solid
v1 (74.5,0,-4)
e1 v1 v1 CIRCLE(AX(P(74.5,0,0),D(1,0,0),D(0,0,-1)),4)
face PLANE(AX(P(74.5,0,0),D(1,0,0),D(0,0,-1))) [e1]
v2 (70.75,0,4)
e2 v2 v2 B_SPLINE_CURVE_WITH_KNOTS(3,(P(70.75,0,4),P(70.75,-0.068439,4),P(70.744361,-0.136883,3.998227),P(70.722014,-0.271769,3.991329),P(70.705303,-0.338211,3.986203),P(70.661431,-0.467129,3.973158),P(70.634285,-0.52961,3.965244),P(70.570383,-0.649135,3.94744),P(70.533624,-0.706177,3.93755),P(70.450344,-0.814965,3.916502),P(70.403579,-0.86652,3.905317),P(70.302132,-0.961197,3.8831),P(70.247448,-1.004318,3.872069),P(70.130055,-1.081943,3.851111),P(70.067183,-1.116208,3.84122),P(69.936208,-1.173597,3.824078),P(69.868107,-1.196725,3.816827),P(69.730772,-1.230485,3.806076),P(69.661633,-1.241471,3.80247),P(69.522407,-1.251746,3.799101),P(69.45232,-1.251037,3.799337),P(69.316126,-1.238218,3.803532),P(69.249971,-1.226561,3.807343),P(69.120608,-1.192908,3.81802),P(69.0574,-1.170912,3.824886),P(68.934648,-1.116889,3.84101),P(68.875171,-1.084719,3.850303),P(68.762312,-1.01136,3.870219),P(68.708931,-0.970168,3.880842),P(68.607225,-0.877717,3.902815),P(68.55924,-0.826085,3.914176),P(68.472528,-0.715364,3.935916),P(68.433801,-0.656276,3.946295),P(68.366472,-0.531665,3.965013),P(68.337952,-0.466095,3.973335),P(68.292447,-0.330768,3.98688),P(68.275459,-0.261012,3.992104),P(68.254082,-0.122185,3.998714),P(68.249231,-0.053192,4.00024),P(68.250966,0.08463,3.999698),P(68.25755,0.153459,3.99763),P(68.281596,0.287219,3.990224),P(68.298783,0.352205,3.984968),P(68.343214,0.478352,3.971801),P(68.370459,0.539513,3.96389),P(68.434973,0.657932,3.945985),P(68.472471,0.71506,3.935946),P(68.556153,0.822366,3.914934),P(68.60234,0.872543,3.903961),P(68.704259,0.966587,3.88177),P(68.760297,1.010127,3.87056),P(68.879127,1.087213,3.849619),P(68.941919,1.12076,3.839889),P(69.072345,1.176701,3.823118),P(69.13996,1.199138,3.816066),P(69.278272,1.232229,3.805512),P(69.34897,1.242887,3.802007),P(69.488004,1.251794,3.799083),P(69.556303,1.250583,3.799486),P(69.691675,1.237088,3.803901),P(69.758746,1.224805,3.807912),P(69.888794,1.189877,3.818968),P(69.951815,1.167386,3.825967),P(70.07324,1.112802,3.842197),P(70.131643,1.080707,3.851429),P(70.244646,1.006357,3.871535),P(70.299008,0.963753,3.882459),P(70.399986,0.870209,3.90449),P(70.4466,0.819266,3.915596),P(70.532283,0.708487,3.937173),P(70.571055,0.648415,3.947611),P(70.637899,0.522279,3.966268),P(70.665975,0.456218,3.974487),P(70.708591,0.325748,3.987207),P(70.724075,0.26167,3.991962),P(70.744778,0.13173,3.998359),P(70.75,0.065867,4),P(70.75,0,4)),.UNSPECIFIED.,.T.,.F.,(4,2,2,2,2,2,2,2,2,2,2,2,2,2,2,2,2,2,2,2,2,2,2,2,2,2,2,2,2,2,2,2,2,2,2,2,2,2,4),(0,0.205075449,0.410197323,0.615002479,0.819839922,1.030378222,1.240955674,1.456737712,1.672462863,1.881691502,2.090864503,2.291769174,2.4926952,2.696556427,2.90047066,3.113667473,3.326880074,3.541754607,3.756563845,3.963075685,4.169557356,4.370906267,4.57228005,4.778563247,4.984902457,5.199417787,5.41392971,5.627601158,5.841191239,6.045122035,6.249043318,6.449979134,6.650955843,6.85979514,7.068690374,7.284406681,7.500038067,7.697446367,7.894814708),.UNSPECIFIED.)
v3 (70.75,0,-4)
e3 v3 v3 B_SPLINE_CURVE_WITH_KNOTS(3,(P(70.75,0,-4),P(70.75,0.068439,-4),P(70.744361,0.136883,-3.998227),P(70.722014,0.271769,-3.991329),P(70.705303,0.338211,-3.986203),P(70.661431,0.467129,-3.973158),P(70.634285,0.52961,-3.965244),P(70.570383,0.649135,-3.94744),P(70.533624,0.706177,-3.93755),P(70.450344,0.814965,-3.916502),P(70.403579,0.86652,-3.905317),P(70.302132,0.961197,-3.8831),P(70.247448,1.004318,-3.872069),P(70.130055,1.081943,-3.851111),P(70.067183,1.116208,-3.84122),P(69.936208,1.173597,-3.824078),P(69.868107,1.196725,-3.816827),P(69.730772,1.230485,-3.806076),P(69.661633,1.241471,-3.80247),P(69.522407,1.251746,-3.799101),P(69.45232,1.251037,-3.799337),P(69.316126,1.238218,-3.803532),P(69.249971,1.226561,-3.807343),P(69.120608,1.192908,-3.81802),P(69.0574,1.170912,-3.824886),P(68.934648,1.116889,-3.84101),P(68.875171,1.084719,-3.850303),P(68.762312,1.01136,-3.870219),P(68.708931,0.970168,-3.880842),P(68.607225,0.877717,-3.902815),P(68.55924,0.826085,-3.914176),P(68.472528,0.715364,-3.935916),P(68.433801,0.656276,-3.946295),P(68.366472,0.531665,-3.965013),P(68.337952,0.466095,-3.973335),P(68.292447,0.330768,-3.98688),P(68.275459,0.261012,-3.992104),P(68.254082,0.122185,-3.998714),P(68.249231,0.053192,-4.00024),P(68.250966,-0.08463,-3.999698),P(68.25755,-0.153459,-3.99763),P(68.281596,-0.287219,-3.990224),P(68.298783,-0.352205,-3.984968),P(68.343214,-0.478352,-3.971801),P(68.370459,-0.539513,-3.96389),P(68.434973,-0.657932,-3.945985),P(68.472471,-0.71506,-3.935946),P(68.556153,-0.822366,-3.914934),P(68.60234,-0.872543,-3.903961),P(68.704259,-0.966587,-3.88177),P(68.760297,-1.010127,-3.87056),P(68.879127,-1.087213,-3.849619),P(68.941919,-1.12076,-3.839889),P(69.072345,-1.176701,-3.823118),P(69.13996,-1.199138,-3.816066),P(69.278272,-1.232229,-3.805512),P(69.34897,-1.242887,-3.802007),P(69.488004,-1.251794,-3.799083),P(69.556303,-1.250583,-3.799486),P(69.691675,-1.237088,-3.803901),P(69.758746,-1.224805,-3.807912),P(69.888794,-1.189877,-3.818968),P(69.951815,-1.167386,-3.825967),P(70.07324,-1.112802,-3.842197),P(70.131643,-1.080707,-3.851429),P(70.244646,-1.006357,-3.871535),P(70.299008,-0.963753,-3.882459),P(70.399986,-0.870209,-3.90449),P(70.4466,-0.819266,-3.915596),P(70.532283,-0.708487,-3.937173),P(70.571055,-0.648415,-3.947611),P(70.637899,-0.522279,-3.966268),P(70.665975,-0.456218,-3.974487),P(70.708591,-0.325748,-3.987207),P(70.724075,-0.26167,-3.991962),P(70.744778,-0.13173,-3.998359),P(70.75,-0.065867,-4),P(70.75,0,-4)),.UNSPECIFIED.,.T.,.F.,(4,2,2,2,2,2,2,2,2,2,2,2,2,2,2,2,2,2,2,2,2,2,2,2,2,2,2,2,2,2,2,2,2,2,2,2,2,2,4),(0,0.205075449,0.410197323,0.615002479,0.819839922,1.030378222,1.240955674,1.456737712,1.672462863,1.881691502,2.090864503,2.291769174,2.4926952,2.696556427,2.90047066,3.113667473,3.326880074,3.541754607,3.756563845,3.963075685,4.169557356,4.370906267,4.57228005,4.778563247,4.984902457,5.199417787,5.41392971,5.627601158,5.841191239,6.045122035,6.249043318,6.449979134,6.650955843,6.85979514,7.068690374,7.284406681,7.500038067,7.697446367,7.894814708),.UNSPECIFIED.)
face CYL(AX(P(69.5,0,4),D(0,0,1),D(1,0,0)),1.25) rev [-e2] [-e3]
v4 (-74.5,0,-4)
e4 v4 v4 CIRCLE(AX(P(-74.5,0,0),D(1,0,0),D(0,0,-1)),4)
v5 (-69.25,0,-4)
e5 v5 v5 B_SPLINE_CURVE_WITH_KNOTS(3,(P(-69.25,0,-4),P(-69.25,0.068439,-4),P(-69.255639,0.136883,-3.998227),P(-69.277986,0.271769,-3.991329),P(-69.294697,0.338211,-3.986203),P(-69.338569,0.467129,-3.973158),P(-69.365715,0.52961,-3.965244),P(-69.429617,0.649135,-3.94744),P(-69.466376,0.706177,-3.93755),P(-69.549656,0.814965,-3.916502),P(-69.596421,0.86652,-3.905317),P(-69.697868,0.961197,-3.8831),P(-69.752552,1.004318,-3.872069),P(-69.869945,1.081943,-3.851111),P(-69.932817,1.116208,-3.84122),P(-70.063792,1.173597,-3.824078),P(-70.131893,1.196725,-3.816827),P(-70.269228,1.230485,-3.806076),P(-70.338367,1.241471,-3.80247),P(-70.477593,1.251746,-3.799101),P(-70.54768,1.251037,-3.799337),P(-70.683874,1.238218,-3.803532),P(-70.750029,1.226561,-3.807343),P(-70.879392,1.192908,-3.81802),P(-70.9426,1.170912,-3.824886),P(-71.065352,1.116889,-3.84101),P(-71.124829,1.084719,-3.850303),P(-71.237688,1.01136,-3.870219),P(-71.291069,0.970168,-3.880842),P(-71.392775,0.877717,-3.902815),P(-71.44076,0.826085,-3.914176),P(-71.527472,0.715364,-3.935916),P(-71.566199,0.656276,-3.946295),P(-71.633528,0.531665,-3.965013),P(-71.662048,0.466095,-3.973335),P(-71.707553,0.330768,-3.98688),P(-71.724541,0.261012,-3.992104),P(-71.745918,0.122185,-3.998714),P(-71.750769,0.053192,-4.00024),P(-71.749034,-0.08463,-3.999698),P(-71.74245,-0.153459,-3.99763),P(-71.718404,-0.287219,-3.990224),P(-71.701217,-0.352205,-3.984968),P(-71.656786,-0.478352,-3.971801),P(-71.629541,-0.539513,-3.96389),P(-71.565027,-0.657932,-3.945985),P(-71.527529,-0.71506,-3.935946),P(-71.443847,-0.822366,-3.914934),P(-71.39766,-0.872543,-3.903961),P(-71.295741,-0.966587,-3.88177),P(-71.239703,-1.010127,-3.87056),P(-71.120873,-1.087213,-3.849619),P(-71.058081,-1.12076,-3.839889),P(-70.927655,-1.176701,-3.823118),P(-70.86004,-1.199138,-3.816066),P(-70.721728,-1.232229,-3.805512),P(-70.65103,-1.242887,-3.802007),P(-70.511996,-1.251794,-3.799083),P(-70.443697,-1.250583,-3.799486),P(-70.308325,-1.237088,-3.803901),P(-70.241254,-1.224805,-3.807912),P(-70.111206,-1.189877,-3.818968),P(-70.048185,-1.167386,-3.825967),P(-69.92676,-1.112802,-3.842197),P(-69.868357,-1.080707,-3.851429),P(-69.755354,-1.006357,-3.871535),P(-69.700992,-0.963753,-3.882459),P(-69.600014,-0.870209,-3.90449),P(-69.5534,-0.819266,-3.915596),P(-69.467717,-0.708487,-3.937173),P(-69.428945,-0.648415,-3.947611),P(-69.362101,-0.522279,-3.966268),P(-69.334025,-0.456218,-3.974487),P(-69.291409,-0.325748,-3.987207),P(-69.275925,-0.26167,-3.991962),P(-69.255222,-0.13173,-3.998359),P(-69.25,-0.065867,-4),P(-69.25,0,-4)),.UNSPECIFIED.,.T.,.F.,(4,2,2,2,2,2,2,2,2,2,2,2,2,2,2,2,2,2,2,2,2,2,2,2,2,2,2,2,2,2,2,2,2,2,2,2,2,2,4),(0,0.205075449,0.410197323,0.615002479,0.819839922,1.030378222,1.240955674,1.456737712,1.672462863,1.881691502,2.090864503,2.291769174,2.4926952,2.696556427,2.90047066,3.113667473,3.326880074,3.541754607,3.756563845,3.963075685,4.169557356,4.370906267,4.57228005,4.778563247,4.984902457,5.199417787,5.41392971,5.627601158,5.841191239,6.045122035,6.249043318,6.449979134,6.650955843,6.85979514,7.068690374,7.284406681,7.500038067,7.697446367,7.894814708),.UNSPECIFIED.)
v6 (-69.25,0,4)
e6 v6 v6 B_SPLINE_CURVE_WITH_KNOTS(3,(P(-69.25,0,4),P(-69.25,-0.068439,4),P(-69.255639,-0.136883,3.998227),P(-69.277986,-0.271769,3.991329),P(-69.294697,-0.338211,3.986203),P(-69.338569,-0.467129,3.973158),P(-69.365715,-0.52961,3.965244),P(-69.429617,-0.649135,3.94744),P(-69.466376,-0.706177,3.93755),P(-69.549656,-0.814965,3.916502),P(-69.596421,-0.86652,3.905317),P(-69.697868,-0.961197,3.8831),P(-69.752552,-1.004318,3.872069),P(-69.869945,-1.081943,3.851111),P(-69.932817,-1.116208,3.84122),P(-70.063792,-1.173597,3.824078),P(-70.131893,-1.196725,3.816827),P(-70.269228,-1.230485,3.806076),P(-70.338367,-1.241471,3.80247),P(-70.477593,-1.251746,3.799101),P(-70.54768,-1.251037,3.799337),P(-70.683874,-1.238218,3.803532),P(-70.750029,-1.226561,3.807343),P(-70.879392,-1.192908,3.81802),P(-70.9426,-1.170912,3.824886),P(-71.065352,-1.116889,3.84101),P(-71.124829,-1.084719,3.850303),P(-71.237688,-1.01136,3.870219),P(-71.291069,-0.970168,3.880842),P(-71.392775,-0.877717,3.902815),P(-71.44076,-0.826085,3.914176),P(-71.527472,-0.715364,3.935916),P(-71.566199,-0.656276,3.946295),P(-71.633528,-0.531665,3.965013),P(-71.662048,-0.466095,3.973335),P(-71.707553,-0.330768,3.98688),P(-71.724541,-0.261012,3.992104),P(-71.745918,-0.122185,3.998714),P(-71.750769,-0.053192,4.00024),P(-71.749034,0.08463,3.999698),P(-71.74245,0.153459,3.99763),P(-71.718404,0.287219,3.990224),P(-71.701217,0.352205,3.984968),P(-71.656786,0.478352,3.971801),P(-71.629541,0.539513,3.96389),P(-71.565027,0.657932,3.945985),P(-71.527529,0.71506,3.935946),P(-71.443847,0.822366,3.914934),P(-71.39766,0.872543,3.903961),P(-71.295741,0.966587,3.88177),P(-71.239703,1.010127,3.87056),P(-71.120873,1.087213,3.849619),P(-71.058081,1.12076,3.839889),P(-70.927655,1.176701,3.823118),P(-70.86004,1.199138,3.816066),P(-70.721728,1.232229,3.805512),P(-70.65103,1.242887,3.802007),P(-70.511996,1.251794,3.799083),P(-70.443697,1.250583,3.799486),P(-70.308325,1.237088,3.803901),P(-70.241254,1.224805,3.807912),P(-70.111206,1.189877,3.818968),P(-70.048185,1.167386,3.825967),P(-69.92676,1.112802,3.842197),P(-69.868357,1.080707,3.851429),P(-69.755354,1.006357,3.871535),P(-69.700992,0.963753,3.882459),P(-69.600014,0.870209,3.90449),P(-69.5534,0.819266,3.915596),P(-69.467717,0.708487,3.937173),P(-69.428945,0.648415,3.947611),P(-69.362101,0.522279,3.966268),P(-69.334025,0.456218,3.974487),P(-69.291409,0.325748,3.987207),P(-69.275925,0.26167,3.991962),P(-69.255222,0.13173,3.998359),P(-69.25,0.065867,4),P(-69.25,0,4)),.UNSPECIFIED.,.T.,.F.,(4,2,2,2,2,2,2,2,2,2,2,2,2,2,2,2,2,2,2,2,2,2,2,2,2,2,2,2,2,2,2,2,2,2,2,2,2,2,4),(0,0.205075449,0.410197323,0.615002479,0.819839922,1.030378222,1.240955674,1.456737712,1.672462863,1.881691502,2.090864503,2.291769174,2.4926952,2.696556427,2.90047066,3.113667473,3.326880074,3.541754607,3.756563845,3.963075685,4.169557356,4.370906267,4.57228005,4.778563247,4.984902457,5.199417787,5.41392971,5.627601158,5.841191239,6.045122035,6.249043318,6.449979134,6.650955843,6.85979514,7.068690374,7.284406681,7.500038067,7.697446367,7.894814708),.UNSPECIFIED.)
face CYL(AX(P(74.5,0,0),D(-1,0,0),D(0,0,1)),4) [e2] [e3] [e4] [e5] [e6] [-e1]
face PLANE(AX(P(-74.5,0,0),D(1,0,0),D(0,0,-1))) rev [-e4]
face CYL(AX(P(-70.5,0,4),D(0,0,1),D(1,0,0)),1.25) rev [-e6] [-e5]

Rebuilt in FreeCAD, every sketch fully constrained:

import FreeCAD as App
import Part
import Sketcher

doc = App.newDocument("Part")
params = doc.addObject("Spreadsheet::Sheet", "Params")
for row, (alias, value) in enumerate([
    ("sketch1_diameter", "8 mm"),
    ("pad1_length", "149 mm"),
    ("sketch2_diameter", "2.5 mm"),
    ("hole_diameter", "2.5 mm"),
], start=1):
    params.set(f"A{row}", alias)
    params.set(f"B{row}", "=" + value)
    params.setAlias(f"B{row}", alias)

body = doc.addObject("PartDesign::Body", "Body")

sketch1 = body.newObject("Sketcher::SketchObject", "Sketch")
sketch1.AttachmentSupport = (doc.getObject("YZ_Plane"), [""])
sketch1.MapMode = "FlatFace"
sketch1.addGeometry(Part.Circle(App.Vector(0, 0, 0), App.Vector(0, 0, 1), 4), False)
sketch1.addConstraint([
    Sketcher.Constraint("Coincident", 0, 3, -1, 1),
    Sketcher.Constraint("Diameter", 0, 8.0),
])
sketch1.setExpression("Constraints[1]", "Params.sketch1_diameter")
pad1 = body.newObject("PartDesign::Pad", "Pad")
pad1.Profile = sketch1
pad1.setExpression("Length", "Params.pad1_length")
pad1.Midplane = True

sketch2 = body.newObject("Sketcher::SketchObject", "Sketch001")
sketch2.AttachmentSupport = (doc.getObject("XY_Plane"), [""])
sketch2.MapMode = "FlatFace"
sketch2.AttachmentOffset = App.Placement(App.Vector(0, 0, 4), App.Rotation())
sketch2.addGeometry([
    Part.Circle(App.Vector(-70.5, 0, 0), App.Vector(0, 0, 1), 1.2),
    Part.Circle(App.Vector(69.5, 0, 0), App.Vector(0, 0, 1), 1.2),
], False)
sketch2.addConstraint([
    Sketcher.Constraint("Equal", 0, 1),
    Sketcher.Constraint("PointOnObject", 0, 3, -1),
    Sketcher.Constraint("PointOnObject", 1, 3, -1),
    Sketcher.Constraint("Diameter", 0, 2.5),
    Sketcher.Constraint("DistanceX", 0, 3, 1, 3, 140.0),
    Sketcher.Constraint("DistanceX", 0, 3, -1, 1, 70.5),
])
sketch2.setExpression("Constraints[3]", "Params.sketch2_diameter")
doc.recompute()
hole = body.newObject("PartDesign::Hole", "Hole")
hole.Profile = sketch2
hole.ThreadType = "None"
hole.setExpression("Diameter", "Params.hole_diameter")
hole.DepthType = "ThroughAll"

doc.recompute()
